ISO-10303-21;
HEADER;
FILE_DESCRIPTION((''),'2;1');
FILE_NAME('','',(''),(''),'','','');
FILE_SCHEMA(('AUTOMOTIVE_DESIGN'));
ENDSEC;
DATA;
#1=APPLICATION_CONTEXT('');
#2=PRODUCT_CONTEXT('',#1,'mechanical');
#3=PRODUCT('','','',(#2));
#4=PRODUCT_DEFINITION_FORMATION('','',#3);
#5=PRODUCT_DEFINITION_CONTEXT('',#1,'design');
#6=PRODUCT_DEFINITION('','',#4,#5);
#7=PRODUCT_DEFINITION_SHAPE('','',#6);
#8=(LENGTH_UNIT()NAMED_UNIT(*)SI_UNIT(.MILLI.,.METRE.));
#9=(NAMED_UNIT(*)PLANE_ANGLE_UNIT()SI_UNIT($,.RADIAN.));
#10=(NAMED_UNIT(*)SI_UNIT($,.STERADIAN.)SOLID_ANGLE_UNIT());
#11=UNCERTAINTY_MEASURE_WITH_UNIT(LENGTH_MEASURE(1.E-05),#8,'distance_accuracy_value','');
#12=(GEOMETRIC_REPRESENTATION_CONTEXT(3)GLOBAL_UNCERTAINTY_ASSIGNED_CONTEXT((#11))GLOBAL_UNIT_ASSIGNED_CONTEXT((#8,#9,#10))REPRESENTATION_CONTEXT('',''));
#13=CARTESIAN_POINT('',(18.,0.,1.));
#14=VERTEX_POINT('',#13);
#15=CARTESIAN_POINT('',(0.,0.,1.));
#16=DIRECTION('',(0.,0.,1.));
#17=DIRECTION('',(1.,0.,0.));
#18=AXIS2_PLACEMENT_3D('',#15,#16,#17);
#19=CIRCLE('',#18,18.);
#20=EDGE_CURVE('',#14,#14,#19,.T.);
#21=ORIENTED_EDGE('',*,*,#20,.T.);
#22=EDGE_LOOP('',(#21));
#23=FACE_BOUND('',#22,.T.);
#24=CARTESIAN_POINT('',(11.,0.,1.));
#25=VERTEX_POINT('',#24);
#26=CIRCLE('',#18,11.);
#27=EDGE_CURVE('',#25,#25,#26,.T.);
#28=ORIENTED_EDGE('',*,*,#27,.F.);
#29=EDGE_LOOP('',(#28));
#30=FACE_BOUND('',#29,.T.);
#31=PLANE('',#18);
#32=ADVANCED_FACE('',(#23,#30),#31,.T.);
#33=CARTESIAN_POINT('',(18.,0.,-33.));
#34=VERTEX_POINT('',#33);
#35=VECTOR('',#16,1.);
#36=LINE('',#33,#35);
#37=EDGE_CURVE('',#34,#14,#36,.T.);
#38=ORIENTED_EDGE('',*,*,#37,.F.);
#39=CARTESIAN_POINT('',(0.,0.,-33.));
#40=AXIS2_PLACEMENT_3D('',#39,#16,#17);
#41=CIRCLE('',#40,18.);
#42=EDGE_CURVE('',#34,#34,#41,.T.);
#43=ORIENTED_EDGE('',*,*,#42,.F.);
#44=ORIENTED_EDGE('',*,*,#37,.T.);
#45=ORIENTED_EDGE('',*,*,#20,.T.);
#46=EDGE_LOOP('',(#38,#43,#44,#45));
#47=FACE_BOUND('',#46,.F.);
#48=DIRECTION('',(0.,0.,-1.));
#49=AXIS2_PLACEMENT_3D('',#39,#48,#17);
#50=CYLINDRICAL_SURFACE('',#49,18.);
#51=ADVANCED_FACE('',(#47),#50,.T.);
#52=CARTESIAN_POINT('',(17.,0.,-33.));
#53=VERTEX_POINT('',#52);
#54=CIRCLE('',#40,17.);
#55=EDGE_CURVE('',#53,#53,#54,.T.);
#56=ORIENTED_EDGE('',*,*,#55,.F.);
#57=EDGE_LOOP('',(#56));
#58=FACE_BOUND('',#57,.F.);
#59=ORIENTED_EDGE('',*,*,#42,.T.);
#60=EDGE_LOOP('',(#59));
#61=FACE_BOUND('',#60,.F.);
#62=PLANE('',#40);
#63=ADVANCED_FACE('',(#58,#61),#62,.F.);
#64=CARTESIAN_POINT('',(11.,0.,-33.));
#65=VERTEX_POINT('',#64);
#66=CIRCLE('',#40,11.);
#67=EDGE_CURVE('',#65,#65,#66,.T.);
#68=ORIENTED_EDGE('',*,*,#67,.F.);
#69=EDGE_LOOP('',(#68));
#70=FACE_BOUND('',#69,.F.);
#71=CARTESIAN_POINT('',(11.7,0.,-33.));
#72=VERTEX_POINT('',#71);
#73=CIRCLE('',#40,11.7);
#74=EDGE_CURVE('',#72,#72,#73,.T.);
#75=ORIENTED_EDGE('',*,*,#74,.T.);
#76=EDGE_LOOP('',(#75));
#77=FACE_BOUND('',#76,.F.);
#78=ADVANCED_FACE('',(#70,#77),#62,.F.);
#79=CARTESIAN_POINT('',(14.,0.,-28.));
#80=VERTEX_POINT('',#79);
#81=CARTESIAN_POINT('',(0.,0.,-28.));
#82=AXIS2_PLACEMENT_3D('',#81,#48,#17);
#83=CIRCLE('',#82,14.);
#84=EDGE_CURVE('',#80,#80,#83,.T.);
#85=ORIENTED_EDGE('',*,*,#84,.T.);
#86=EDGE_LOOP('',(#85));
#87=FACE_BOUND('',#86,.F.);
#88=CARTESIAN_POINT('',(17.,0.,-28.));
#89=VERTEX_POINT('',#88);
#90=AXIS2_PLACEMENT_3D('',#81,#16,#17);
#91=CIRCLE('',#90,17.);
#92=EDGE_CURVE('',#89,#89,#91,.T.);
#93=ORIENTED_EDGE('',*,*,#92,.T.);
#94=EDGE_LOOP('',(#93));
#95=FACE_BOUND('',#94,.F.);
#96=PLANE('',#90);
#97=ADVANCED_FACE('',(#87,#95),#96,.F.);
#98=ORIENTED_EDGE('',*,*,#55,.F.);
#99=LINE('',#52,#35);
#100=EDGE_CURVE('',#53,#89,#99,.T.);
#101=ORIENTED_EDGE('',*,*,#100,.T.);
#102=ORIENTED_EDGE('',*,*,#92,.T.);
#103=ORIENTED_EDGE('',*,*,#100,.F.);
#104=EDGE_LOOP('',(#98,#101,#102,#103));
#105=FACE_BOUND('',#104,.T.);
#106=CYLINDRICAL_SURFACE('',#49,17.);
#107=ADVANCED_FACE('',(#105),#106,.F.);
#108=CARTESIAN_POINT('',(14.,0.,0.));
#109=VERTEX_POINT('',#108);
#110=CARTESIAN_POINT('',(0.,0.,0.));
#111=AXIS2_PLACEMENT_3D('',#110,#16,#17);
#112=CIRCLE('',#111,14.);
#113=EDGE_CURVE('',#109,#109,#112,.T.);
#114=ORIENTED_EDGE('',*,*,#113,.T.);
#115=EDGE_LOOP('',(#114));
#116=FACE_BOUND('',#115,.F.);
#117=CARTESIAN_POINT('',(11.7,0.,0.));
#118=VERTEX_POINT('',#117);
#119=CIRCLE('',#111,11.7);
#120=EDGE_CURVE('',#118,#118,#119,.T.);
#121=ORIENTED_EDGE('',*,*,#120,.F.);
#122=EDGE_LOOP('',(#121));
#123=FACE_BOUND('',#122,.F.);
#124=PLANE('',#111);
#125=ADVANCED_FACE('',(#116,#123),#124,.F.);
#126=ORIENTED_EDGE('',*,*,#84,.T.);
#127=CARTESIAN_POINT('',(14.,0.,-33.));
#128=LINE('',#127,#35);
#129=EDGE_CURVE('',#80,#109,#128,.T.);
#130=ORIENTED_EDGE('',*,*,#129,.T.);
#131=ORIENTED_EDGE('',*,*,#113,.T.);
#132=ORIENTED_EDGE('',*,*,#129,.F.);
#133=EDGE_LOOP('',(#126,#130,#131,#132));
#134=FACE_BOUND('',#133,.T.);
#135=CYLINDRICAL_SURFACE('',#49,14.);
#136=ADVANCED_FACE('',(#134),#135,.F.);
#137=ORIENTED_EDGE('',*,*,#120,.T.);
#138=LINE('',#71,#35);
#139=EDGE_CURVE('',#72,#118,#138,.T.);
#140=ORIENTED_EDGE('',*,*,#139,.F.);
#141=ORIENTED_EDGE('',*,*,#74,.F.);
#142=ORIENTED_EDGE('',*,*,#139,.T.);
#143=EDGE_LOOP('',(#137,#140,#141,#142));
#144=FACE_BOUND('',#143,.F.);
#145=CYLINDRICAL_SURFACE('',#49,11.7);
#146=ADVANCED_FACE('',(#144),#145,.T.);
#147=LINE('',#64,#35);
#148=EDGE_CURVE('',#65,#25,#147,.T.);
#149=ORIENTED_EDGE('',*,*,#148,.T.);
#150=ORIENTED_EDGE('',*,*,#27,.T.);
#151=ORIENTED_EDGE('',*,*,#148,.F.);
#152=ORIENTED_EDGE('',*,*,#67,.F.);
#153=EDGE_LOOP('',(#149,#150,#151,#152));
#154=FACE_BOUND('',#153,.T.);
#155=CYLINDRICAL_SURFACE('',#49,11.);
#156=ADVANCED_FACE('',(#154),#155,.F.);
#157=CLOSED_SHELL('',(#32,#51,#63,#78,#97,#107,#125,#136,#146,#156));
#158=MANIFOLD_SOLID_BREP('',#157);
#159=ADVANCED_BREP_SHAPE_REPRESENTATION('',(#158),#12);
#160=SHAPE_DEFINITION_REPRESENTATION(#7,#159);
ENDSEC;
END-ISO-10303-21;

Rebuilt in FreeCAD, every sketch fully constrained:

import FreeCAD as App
import Part
import Sketcher

V = App.Vector
Q = App.Units.Quantity

doc = App.newDocument("Part")
params = doc.addObject("Spreadsheet::Sheet", "Params")
for row, (alias, value) in enumerate([
    ("sketch1_diameter", "3 mm"),
    ("pad1_length", "14 mm"),
    ("sketch2_diameter", "23.4 mm"),
    ("pad2_length", "33 mm"),
    ("sketch3_diameter", "3 mm"),
    ("pad3_length", "14 mm"),
    ("sketch4_diameter", "28 mm"),
    ("pad4_length", "33 mm"),
    ("sketch5_width", "1 mm"),
    ("pad5_length", "1 mm"),
    ("sketch6_diameter", "34 mm"),
    ("pad6_length", "5 mm"),
    ("sketch7_diameter", "22 mm"),
    ("pad7_length", "34 mm"),
    ("sketch8_diameter", "36 mm"),
    ("pad8_length", "34 mm"),
], start=1):
    params.set(f"A{row}", alias)
    params.set(f"B{row}", "=" + value)
    params.setAlias(f"B{row}", alias)

body = doc.addObject("PartDesign::Body", "Body")

sketch1 = body.newObject("Sketcher::SketchObject", "Sketch")
sketch1.AttachmentSupport = (doc.getObject("XY_Plane"), [""])
sketch1.MapMode = "FlatFace"
sketch1.AttachmentOffset = App.Placement(V(0, 0, -15), App.Rotation())
sketch1.addGeometry(Part.Circle(V(53.7, 148, 0), V(0, 0, 1), 1.5), False)
sketch1.addConstraint(Sketcher.Constraint("Diameter", 0, Q("3 mm")))
sketch1.addConstraint(Sketcher.Constraint("DistanceY", -1, 1, 0, 3, Q("148 mm")))
sketch1.addConstraint(Sketcher.Constraint("DistanceX", -1, 1, 0, 3, Q("53.66 mm")))
sketch1.setExpression("Constraints[0]", "Params.sketch1_diameter")
pad1 = body.newObject("PartDesign::Pad", "Pad")
pad1.Profile = sketch1
pad1.setExpression("Length", "Params.pad1_length")
body2 = doc.addObject("PartDesign::Body", "Body001")

sketch2 = body2.newObject("Sketcher::SketchObject", "Sketch001")
sketch2.AttachmentSupport = (doc.getObject("XY_Plane001"), [""])
sketch2.MapMode = "FlatFace"
sketch2.AttachmentOffset = App.Placement(V(0, 0, -10), App.Rotation())
sketch2.addGeometry(Part.Circle(V(74, 148, 0), V(0, 0, 1), 12), False)
sketch2.addConstraint(Sketcher.Constraint("Diameter", 0, Q("23.4 mm")))
sketch2.addConstraint(Sketcher.Constraint("DistanceY", -1, 1, 0, 3, Q("148 mm")))
sketch2.addConstraint(Sketcher.Constraint("DistanceX", -1, 1, 0, 3, Q("73.66 mm")))
sketch2.setExpression("Constraints[0]", "Params.sketch2_diameter")
pad2 = body2.newObject("PartDesign::Pad", "Pad001")
pad2.Profile = sketch2
pad2.setExpression("Length", "Params.pad2_length")
body3 = doc.addObject("PartDesign::Body", "Body002")
body3.AllowCompound = True

sketch3 = body3.newObject("Sketcher::SketchObject", "Sketch002")
sketch3.AttachmentSupport = (doc.getObject("XY_Plane002"), [""])
sketch3.MapMode = "FlatFace"
sketch3.AttachmentOffset = App.Placement(V(0, 0, -14), App.Rotation())
sketch3.addGeometry(Part.Circle(V(93.7, 148, 0), V(0, 0, 1), 1.5), False)
sketch3.addConstraint(Sketcher.Constraint("Diameter", 0, Q("3 mm")))
sketch3.addConstraint(Sketcher.Constraint("DistanceY", -1, 1, 0, 3, Q("148 mm")))
sketch3.addConstraint(Sketcher.Constraint("DistanceX", -1, 1, 0, 3, Q("93.66 mm")))
sketch3.setExpression("Constraints[0]", "Params.sketch3_diameter")
pad3 = body3.newObject("PartDesign::Pad", "Pad002")
pad3.Profile = sketch3
pad3.setExpression("Length", "Params.pad3_length")
doc.recompute()

boolean = body3.newObject("PartDesign::Boolean", "Boolean")
boolean.Type = "Fuse"
boolean.addObjects([body])
doc.recompute()

boolean2 = body3.newObject("PartDesign::Boolean", "Boolean001")
boolean2.Type = "Fuse"
boolean2.addObjects([body2])
body4 = doc.addObject("PartDesign::Body", "Body003")

sketch4 = body4.newObject("Sketcher::SketchObject", "Sketch003")
sketch4.AttachmentSupport = (doc.getObject("XY_Plane003"), [""])
sketch4.MapMode = "FlatFace"
sketch4.AttachmentOffset = App.Placement(V(0, 0, -10), App.Rotation())
sketch4.addGeometry(Part.Circle(V(74, 148, 0), V(0, 0, 1), 14), False)
sketch4.addConstraint(Sketcher.Constraint("Diameter", 0, Q("28 mm")))
sketch4.addConstraint(Sketcher.Constraint("DistanceY", -1, 1, 0, 3, Q("148 mm")))
sketch4.addConstraint(Sketcher.Constraint("DistanceX", -1, 1, 0, 3, Q("73.66 mm")))
sketch4.setExpression("Constraints[0]", "Params.sketch4_diameter")
pad4 = body4.newObject("PartDesign::Pad", "Pad003")
pad4.Profile = sketch4
pad4.setExpression("Length", "Params.pad4_length")
body5 = doc.addObject("PartDesign::Body", "Body004")

sketch5 = body5.newObject("Sketcher::SketchObject", "Sketch004")
sketch5.AttachmentSupport = (doc.getObject("XY_Plane004"), [""])
sketch5.MapMode = "FlatFace"
sketch5.AttachmentOffset = App.Placement(V(0, 0, -8), App.Rotation())
sketch5.addGeometry(Part.LineSegment(V(63, 137, 0), V(63, 136, 0)), False)
sketch5.addGeometry(Part.LineSegment(V(63, 136, 0), V(64, 136, 0)), False)
sketch5.addGeometry(Part.LineSegment(V(64, 136, 0), V(64, 137, 0)), False)
sketch5.addGeometry(Part.LineSegment(V(64, 137, 0), V(63, 137, 0)), False)
sketch5.addConstraint(Sketcher.Constraint("Coincident", 0, 2, 1, 1))
sketch5.addConstraint(Sketcher.Constraint("Coincident", 1, 2, 2, 1))
sketch5.addConstraint(Sketcher.Constraint("Coincident", 2, 2, 3, 1))
sketch5.addConstraint(Sketcher.Constraint("Coincident", 3, 2, 0, 1))
sketch5.addConstraint(Sketcher.Constraint("Vertical", 0))
sketch5.addConstraint(Sketcher.Constraint("Horizontal", 1))
sketch5.addConstraint(Sketcher.Constraint("Vertical", 2))
sketch5.addConstraint(Sketcher.Constraint("Horizontal", 3))
sketch5.addConstraint(Sketcher.Constraint("Equal", 3, 0))
sketch5.addConstraint(Sketcher.Constraint("DistanceX", 1, 1, 1, 2, Q("1 mm")))
sketch5.addConstraint(Sketcher.Constraint("DistanceX", -1, 1, 0, 2, Q("63 mm")))
sketch5.addConstraint(Sketcher.Constraint("DistanceY", -1, 1, 0, 2, Q("136 mm")))
sketch5.setExpression("Constraints[9]", "Params.sketch5_width")
pad5 = body5.newObject("PartDesign::Pad", "Pad004")
pad5.Profile = sketch5
pad5.setExpression("Length", "Params.pad5_length")
body6 = doc.addObject("PartDesign::Body", "Body005")

sketch6 = body6.newObject("Sketcher::SketchObject", "Sketch005")
sketch6.AttachmentSupport = (doc.getObject("XY_Plane005"), [""])
sketch6.MapMode = "FlatFace"
sketch6.AttachmentOffset = App.Placement(V(0, 0, -10), App.Rotation())
sketch6.addGeometry(Part.Circle(V(74, 148, 0), V(0, 0, 1), 17), False)
sketch6.addConstraint(Sketcher.Constraint("Diameter", 0, Q("34 mm")))
sketch6.addConstraint(Sketcher.Constraint("DistanceY", -1, 1, 0, 3, Q("148 mm")))
sketch6.addConstraint(Sketcher.Constraint("DistanceX", -1, 1, 0, 3, Q("73.66 mm")))
sketch6.setExpression("Constraints[0]", "Params.sketch6_diameter")
pad6 = body6.newObject("PartDesign::Pad", "Pad005")
pad6.Profile = sketch6
pad6.setExpression("Length", "Params.pad6_length")
doc.recompute()

boolean3 = body6.newObject("PartDesign::Boolean", "Boolean002")
boolean3.Type = "Fuse"
boolean3.addObjects([body4])
doc.recompute()

boolean4 = body6.newObject("PartDesign::Boolean", "Boolean003")
boolean4.Type = "Fuse"
boolean4.addObjects([body5])
doc.recompute()

boolean5 = body6.newObject("PartDesign::Boolean", "Boolean004")
boolean5.Type = "Cut"
boolean5.addObjects([body3])
body7 = doc.addObject("PartDesign::Body", "Body006")
doc.recompute()

body6.Placement = App.Placement(V(-73.66, -148, -23), App.Rotation(V(0, 0, 1), 0))
boolean6 = body7.newObject("PartDesign::Boolean", "Boolean005")
boolean6.Type = "Fuse"
boolean6.addObjects([body6])
body8 = doc.addObject("PartDesign::Body", "Body007")
body8.AllowCompound = True

sketch7 = body8.newObject("Sketcher::SketchObject", "Sketch006")
sketch7.AttachmentSupport = (doc.getObject("XY_Plane007"), [""])
sketch7.MapMode = "FlatFace"
sketch7.AttachmentOffset = App.Placement(V(0, 0, -33), App.Rotation())
sketch7.addGeometry(Part.Circle(V(0, 0, 0), V(0, 0, 1), 11), False)
sketch7.addConstraint(Sketcher.Constraint("Coincident", 0, 3, -1, 1))
sketch7.addConstraint(Sketcher.Constraint("Diameter", 0, Q("22 mm")))
sketch7.setExpression("Constraints[1]", "Params.sketch7_diameter")
pad7 = body8.newObject("PartDesign::Pad", "Pad006")
pad7.Profile = sketch7
pad7.setExpression("Length", "Params.pad7_length")
doc.recompute()

boolean7 = body8.newObject("PartDesign::Boolean", "Boolean006")
boolean7.Type = "Fuse"
boolean7.addObjects([body7])
body9 = doc.addObject("PartDesign::Body", "Body008")

sketch8 = body9.newObject("Sketcher::SketchObject", "Sketch007")
sketch8.AttachmentSupport = (doc.getObject("XY_Plane008"), [""])
sketch8.MapMode = "FlatFace"
sketch8.AttachmentOffset = App.Placement(V(0, 0, -33), App.Rotation())
sketch8.addGeometry(Part.Circle(V(0, 0, 0), V(0, 0, 1), 18), False)
sketch8.addConstraint(Sketcher.Constraint("Coincident", 0, 3, -1, 1))
sketch8.addConstraint(Sketcher.Constraint("Diameter", 0, Q("36 mm")))
sketch8.setExpression("Constraints[1]", "Params.sketch8_diameter")
pad8 = body9.newObject("PartDesign::Pad", "Pad007")
pad8.Profile = sketch8
pad8.setExpression("Length", "Params.pad8_length")
doc.recompute()

boolean8 = body9.newObject("PartDesign::Boolean", "Boolean007")
boolean8.Type = "Cut"
boolean8.addObjects([body8])

doc.recompute()
